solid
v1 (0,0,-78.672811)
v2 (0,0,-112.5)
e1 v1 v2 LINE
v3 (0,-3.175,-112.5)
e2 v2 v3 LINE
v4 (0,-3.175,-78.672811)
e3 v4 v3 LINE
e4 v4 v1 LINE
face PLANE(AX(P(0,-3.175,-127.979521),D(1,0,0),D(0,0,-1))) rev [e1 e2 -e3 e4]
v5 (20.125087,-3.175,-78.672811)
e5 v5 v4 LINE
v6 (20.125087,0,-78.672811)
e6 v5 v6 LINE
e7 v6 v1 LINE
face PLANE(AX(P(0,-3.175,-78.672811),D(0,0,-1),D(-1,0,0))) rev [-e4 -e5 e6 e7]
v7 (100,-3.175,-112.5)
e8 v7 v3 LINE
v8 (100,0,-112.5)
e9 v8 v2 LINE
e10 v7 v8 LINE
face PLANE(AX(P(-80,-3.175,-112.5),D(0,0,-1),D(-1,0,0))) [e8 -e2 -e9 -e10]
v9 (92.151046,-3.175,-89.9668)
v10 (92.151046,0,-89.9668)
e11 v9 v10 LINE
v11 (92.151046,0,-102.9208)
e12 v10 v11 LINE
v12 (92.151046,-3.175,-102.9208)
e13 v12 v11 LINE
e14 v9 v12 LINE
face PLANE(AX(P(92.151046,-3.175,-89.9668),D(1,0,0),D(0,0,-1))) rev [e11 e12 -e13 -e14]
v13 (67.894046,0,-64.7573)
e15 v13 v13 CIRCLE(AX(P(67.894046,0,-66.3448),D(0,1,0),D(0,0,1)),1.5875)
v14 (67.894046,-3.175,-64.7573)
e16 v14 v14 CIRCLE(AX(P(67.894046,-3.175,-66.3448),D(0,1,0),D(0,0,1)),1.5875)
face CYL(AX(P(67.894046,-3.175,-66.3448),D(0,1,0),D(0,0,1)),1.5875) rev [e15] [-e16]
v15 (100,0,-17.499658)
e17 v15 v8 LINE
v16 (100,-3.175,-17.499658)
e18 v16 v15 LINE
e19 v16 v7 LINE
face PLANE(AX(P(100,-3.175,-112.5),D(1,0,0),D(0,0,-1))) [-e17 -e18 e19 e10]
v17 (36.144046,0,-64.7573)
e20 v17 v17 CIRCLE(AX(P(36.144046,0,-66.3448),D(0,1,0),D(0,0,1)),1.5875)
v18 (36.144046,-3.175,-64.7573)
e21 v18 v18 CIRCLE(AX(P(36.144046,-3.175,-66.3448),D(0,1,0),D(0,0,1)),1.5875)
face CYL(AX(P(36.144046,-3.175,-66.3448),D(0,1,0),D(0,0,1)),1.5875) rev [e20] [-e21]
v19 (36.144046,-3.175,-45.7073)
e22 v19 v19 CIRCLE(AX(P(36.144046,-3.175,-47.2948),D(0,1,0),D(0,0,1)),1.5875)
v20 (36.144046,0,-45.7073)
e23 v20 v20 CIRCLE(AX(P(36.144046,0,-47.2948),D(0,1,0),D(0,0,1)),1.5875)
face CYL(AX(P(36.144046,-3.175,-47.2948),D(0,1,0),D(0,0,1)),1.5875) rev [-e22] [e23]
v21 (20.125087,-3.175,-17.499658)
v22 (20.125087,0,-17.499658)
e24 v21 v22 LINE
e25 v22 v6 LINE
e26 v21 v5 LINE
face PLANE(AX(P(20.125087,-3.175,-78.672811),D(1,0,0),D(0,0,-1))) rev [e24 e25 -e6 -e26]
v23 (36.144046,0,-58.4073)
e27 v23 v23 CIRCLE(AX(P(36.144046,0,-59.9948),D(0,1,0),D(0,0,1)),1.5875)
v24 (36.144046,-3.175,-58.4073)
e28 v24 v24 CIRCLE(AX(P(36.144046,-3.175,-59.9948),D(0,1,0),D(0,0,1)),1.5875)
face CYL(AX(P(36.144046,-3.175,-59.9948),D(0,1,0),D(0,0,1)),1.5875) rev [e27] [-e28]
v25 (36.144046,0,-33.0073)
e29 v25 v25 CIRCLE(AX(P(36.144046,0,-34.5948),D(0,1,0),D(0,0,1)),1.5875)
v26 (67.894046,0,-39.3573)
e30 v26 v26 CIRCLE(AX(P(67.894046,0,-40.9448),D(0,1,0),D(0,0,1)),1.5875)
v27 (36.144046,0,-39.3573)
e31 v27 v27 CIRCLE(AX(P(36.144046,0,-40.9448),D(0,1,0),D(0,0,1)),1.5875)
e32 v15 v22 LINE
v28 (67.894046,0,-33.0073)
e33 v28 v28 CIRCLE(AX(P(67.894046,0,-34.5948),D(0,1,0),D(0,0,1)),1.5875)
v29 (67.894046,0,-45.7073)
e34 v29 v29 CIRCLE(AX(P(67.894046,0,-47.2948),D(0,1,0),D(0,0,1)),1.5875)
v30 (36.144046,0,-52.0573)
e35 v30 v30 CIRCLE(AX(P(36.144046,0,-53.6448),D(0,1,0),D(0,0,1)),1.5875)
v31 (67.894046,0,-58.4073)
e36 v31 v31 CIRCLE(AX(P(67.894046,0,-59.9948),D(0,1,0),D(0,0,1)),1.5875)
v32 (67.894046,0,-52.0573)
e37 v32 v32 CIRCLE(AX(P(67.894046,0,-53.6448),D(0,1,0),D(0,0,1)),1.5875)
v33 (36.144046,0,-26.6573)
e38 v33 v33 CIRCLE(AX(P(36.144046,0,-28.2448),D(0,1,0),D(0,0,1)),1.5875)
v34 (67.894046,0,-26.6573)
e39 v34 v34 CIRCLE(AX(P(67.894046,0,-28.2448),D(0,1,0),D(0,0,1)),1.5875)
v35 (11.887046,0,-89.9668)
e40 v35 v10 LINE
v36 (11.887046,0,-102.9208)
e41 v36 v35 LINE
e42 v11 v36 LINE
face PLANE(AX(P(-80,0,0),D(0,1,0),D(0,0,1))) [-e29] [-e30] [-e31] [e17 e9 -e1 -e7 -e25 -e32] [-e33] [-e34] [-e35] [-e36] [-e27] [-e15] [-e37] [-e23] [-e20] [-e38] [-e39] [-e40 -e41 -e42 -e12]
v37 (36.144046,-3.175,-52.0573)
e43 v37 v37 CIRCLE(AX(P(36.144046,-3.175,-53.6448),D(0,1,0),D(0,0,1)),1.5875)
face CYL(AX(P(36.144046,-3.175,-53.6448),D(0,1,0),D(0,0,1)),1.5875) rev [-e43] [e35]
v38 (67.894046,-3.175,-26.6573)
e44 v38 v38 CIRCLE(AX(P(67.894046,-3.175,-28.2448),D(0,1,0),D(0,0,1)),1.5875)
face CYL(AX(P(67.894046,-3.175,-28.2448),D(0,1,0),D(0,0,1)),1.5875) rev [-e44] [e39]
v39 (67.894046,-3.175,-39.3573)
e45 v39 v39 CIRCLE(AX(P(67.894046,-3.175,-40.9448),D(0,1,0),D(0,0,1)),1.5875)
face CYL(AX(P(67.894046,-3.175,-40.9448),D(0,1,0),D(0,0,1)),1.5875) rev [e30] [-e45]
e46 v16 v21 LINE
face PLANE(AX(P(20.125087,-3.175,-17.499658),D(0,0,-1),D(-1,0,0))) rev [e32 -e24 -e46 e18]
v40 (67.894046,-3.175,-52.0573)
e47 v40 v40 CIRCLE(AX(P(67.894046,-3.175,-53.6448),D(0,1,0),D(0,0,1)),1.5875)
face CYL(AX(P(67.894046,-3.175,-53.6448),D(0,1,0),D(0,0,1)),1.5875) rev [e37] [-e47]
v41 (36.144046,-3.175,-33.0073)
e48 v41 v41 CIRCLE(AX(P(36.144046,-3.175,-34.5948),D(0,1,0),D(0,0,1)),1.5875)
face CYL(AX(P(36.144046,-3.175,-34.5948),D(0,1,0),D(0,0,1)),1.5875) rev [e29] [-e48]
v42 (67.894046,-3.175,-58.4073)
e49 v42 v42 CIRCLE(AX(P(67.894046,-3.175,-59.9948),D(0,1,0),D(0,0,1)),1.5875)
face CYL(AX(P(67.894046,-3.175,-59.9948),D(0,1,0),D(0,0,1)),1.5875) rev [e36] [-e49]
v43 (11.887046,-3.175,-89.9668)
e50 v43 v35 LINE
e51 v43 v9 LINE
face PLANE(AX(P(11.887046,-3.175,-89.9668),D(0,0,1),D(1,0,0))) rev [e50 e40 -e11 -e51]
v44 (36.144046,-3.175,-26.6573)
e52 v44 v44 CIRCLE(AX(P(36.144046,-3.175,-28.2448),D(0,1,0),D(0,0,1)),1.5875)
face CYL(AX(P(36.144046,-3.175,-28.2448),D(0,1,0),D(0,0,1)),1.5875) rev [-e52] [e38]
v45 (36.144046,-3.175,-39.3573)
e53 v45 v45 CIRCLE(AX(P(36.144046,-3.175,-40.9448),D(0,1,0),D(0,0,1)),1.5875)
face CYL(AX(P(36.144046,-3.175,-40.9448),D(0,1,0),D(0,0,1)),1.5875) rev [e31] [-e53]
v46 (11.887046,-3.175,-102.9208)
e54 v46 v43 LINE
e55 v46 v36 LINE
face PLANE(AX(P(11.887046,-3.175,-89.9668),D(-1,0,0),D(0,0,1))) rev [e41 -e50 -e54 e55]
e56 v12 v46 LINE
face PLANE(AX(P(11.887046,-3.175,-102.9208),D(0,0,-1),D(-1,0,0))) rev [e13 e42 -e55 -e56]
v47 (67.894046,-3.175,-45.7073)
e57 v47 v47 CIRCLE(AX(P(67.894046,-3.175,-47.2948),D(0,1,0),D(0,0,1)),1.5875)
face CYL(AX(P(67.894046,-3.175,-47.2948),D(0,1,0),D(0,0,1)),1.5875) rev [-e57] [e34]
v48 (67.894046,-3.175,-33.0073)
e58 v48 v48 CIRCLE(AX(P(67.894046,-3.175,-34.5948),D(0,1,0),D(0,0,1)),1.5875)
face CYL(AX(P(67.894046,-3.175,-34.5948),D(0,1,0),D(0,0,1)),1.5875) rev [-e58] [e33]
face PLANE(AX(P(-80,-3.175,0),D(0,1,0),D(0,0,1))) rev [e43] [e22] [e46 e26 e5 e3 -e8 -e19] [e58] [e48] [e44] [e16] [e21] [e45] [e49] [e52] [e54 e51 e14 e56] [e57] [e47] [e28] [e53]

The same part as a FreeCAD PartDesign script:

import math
import FreeCAD as App
import Part
import Sketcher

V = App.Vector
Q = App.Units.Quantity


def add_polygon(sketch, points):
    """Adds a closed chain of lines whose ends are joined by coincident constraints."""
    first, n = sketch.GeometryCount, len(points)
    for a, b in zip(points, points[1:] + points[:1]):
        sketch.addGeometry(Part.LineSegment(App.Vector(*a, 0), App.Vector(*b, 0)), False)
    for i in range(n):
        sketch.addConstraint(Sketcher.Constraint("Coincident", first + i, 2, first + (i + 1) % n, 1))

doc = App.newDocument("Part")
params = doc.addObject("Spreadsheet::Sheet", "Params")
for row, (alias, value) in enumerate([
    ("pad1_length", "0.125 in"),
    ("sketch2_diameter", "0.125 in"),
    ("sketch2_width", "3.16 in"),
    ("sketch2_height", "0.51 in"),
    ("sketch3_diameter", "0.16 in"),
    ("sketch3_diameter2", "0.13 in"),
    ("sketch3_width", "1.86 in"),
    ("sketch3_height", "5.48 in"),
    ("sketch4_radius", "1 in"),
    ("sketch4_diameter", "0.13 in"),
    ("sketch5_diameter", "0.14 in"),
], start=1):
    params.set(f"A{row}", alias)
    params.set(f"B{row}", "=" + value)
    params.setAlias(f"B{row}", alias)

body = doc.addObject("PartDesign::Body", "Body")

sketch1 = body.newObject("Sketcher::SketchObject", "Sketch")
sketch1.AttachmentSupport = (doc.getObject("XZ_Plane"), [""])
sketch1.MapMode = "FlatFace"
sketch1.addGeometry([
    Part.LineSegment(V(100, -112.5, 0), V(-80, -112.5, 0)),
    Part.ArcOfCircle(Part.Circle(V(-80, 0, 0), V(0, 0, 1), 112.5), math.radians(90), math.radians(270)),
    Part.LineSegment(V(-80, 112.5, 0), V(100, 112.5, 0)),
    Part.LineSegment(V(100, 112.5, 0), V(100, -112.5, 0)),
], False)
sketch1.addConstraint([
    Sketcher.Constraint("Tangent", 0, 2, 1, 2),
    Sketcher.Constraint("Tangent", 1, 1, 2, 1),
    Sketcher.Constraint("Coincident", 2, 2, 3, 1),
    Sketcher.Constraint("Coincident", 3, 2, 0, 1),
    Sketcher.Constraint("Horizontal", 0),
    Sketcher.Constraint("Horizontal", 2),
    Sketcher.Constraint("Vertical", 3),
    Sketcher.Constraint("PointOnObject", 1, 3, -1),
    Sketcher.Constraint("Radius", 1, 112.5),
    Sketcher.Constraint("DistanceX", 0, 2, 0, 1, 180.0),
    Sketcher.Constraint("DistanceX", 1, 3, -1, 1, 80.0),
])
pad1 = body.newObject("PartDesign::Pad", "Pad")
pad1.Profile = sketch1
pad1.setExpression("Length", "Params.pad1_length")

sketch2 = body.newObject("Sketcher::SketchObject", "Sketch001")
sketch2.AttachmentSupport = (doc.getObject("XZ_Plane"), [""])
sketch2.MapMode = "FlatFace"
sketch2.addGeometry(Part.Circle(V(36.144046, 66.3448, 0), V(0, 0, 1), 1.5875), False)
sketch2.addGeometry(Part.Circle(V(36.144046, 59.9948, 0), V(0, 0, 1), 1.5875), False)
sketch2.addGeometry(Part.Circle(V(36.144046, 53.6448, 0), V(0, 0, 1), 1.5875), False)
sketch2.addGeometry(Part.Circle(V(36.144046, 47.2948, 0), V(0, 0, 1), 1.5875), False)
sketch2.addGeometry(Part.Circle(V(36.144046, 40.9448, 0), V(0, 0, 1), 1.5875), False)
sketch2.addGeometry(Part.Circle(V(36.144046, 34.5948, 0), V(0, 0, 1), 1.5875), False)
sketch2.addGeometry(Part.Circle(V(36.144046, 28.2448, 0), V(0, 0, 1), 1.5875), False)
sketch2.addGeometry(Part.Circle(V(67.894046, 66.3448, 0), V(0, 0, 1), 1.5875), False)
sketch2.addGeometry(Part.Circle(V(67.894046, 59.9948, 0), V(0, 0, 1), 1.5875), False)
sketch2.addGeometry(Part.Circle(V(67.894046, 53.6448, 0), V(0, 0, 1), 1.5875), False)
sketch2.addGeometry(Part.Circle(V(67.894046, 47.2948, 0), V(0, 0, 1), 1.5875), False)
sketch2.addGeometry(Part.Circle(V(67.894046, 40.9448, 0), V(0, 0, 1), 1.5875), False)
sketch2.addGeometry(Part.Circle(V(67.894046, 34.5948, 0), V(0, 0, 1), 1.5875), False)
sketch2.addGeometry(Part.Circle(V(67.894046, 28.2448, 0), V(0, 0, 1), 1.5875), False)
sketch2.addGeometry(Part.Circle(V(36.144046, -66.3448, 0), V(0, 0, 1), 1.5875), False)
sketch2.addGeometry(Part.Circle(V(36.144046, -59.9948, 0), V(0, 0, 1), 1.5875), False)
sketch2.addGeometry(Part.Circle(V(36.144046, -53.6448, 0), V(0, 0, 1), 1.5875), False)
sketch2.addGeometry(Part.Circle(V(36.144046, -47.2948, 0), V(0, 0, 1), 1.5875), False)
sketch2.addGeometry(Part.Circle(V(36.144046, -40.9448, 0), V(0, 0, 1), 1.5875), False)
sketch2.addGeometry(Part.Circle(V(36.144046, -34.5948, 0), V(0, 0, 1), 1.5875), False)
sketch2.addGeometry(Part.Circle(V(36.144046, -28.2448, 0), V(0, 0, 1), 1.5875), False)
sketch2.addGeometry(Part.Circle(V(67.894046, -66.3448, 0), V(0, 0, 1), 1.5875), False)
sketch2.addGeometry(Part.Circle(V(67.894046, -59.9948, 0), V(0, 0, 1), 1.5875), False)
sketch2.addGeometry(Part.Circle(V(67.894046, -53.6448, 0), V(0, 0, 1), 1.5875), False)
sketch2.addGeometry(Part.Circle(V(67.894046, -47.2948, 0), V(0, 0, 1), 1.5875), False)
sketch2.addGeometry(Part.Circle(V(67.894046, -40.9448, 0), V(0, 0, 1), 1.5875), False)
sketch2.addGeometry(Part.Circle(V(67.894046, -34.5948, 0), V(0, 0, 1), 1.5875), False)
sketch2.addGeometry(Part.Circle(V(67.894046, -28.2448, 0), V(0, 0, 1), 1.5875), False)
add_polygon(sketch2, [(11.887046, 89.9668), (11.887046, 102.9208), (92.151046, 102.9208), (92.151046, 89.9668)])
add_polygon(sketch2, [(11.887046, -102.9208), (11.887046, -89.9668), (92.151046, -89.9668), (92.151046, -102.9208)])
sketch2.addConstraint([
    Sketcher.Constraint("Vertical", 28),
    Sketcher.Constraint("Horizontal", 29),
    Sketcher.Constraint("Vertical", 30),
    Sketcher.Constraint("Horizontal", 31),
    Sketcher.Constraint("Vertical", 32),
    Sketcher.Constraint("Horizontal", 33),
    Sketcher.Constraint("Vertical", 34),
    Sketcher.Constraint("Horizontal", 35),
    Sketcher.Constraint("Equal", 0, 1),
    Sketcher.Constraint("Equal", 1, 2),
    Sketcher.Constraint("Equal", 2, 3),
    Sketcher.Constraint("Equal", 3, 4),
    Sketcher.Constraint("Equal", 4, 5),
    Sketcher.Constraint("Equal", 5, 6),
    Sketcher.Constraint("Equal", 6, 7),
    Sketcher.Constraint("Equal", 7, 8),
    Sketcher.Constraint("Equal", 8, 9),
    Sketcher.Constraint("Equal", 9, 10),
    Sketcher.Constraint("Equal", 10, 11),
    Sketcher.Constraint("Equal", 11, 12),
    Sketcher.Constraint("Equal", 12, 13),
    Sketcher.Constraint("Equal", 13, 14),
    Sketcher.Constraint("Equal", 14, 15),
    Sketcher.Constraint("Equal", 15, 16),
    Sketcher.Constraint("Equal", 16, 17),
    Sketcher.Constraint("Equal", 17, 18),
    Sketcher.Constraint("Equal", 18, 19),
    Sketcher.Constraint("Equal", 19, 20),
    Sketcher.Constraint("Equal", 20, 21),
    Sketcher.Constraint("Equal", 21, 22),
    Sketcher.Constraint("Equal", 22, 23),
    Sketcher.Constraint("Equal", 23, 24),
    Sketcher.Constraint("Equal", 24, 25),
    Sketcher.Constraint("Equal", 25, 26),
    Sketcher.Constraint("Equal", 26, 27),
    Sketcher.Constraint("Symmetric", 0, 3, 14, 3, -1),
    Sketcher.Constraint("Symmetric", 1, 3, 15, 3, -1),
    Sketcher.Constraint("Symmetric", 2, 3, 16, 3, -1),
    Sketcher.Constraint("Symmetric", 3, 3, 17, 3, -1),
    Sketcher.Constraint("Symmetric", 4, 3, 18, 3, -1),
    Sketcher.Constraint("Symmetric", 5, 3, 19, 3, -1),
    Sketcher.Constraint("Symmetric", 6, 3, 20, 3, -1),
    Sketcher.Constraint("Symmetric", 7, 3, 21, 3, -1),
    Sketcher.Constraint("Symmetric", 8, 3, 22, 3, -1),
    Sketcher.Constraint("Symmetric", 9, 3, 23, 3, -1),
    Sketcher.Constraint("Symmetric", 10, 3, 24, 3, -1),
    Sketcher.Constraint("Symmetric", 11, 3, 25, 3, -1),
    Sketcher.Constraint("Symmetric", 12, 3, 26, 3, -1),
    Sketcher.Constraint("Symmetric", 13, 3, 27, 3, -1),
    Sketcher.Constraint("Symmetric", 31, 2, 32, 2, -1),
    Sketcher.Constraint("Symmetric", 29, 2, 34, 2, -1),
    Sketcher.Constraint("Horizontal", 0, 3, 7, 3),
    Sketcher.Constraint("Horizontal", 1, 3, 8, 3),
    Sketcher.Constraint("Horizontal", 2, 3, 9, 3),
    Sketcher.Constraint("Horizontal", 3, 3, 10, 3),
    Sketcher.Constraint("Horizontal", 4, 3, 11, 3),
    Sketcher.Constraint("Horizontal", 5, 3, 12, 3),
    Sketcher.Constraint("Horizontal", 6, 3, 13, 3),
    Sketcher.Constraint("Vertical", 0, 3, 1, 3),
    Sketcher.Constraint("Vertical", 1, 3, 2, 3),
    Sketcher.Constraint("Vertical", 2, 3, 3, 3),
    Sketcher.Constraint("Vertical", 3, 3, 4, 3),
    Sketcher.Constraint("Vertical", 4, 3, 5, 3),
    Sketcher.Constraint("Vertical", 5, 3, 6, 3),
    Sketcher.Constraint("Vertical", 7, 3, 8, 3),
    Sketcher.Constraint("Vertical", 8, 3, 9, 3),
    Sketcher.Constraint("Vertical", 9, 3, 10, 3),
    Sketcher.Constraint("Vertical", 10, 3, 11, 3),
    Sketcher.Constraint("Vertical", 11, 3, 12, 3),
    Sketcher.Constraint("Vertical", 12, 3, 13, 3),
    Sketcher.Constraint("Diameter", 0, Q("0.125 in")),
    Sketcher.Constraint("DistanceY", 4, 3, 0, 3, Q("1 in")),
    Sketcher.Constraint("DistanceY", 5, 3, 1, 3, Q("1 in")),
    Sketcher.Constraint("DistanceY", 6, 3, 2, 3, Q("1 in")),
    Sketcher.Constraint("DistanceX", 29, 1, 29, 2, Q("3.16 in")),
    Sketcher.Constraint("DistanceY", 28, 1, 28, 2, Q("0.51 in")),
    Sketcher.Constraint("DistanceY", 2, 3, 0, 3, Q("0.5 in")),
    Sketcher.Constraint("DistanceY", 3, 3, 1, 3, Q("0.5 in")),
    Sketcher.Constraint("DistanceY", 1, 3, 0, 3, Q("0.25 in")),
    Sketcher.Constraint("DistanceX", 0, 3, 7, 3, Q("1.25 in")),
    Sketcher.Constraint("DistanceY", 0, 3, 28, 2, Q("1.44 in")),
    Sketcher.Constraint("DistanceY", -1, 1, 0, 3, Q("2.612 in")),
    Sketcher.Constraint("DistanceX", 28, 2, 0, 3, Q("0.955 in")),
    Sketcher.Constraint("DistanceX", -1, 1, 0, 3, 36.144046),
])
sketch2.setExpression("Constraints[78]", "Params.sketch2_diameter")
sketch2.setExpression("Constraints[82]", "Params.sketch2_width")
sketch2.setExpression("Constraints[83]", "Params.sketch2_height")
pocket1 = body.newObject("PartDesign::Pocket", "Pocket")
pocket1.Profile = sketch2
pocket1.Type = "ThroughAll"
pocket1.Reversed = True

sketch3 = body.newObject("Sketcher::SketchObject", "Sketch002")
sketch3.AttachmentSupport = (doc.getObject("XZ_Plane"), [""])
sketch3.MapMode = "FlatFace"
sketch3.addGeometry(Part.Circle(V(-50.42154, 0, 0), V(0, 0, 1), 2.032), False)
sketch3.addGeometry(Part.Circle(V(25.77846, 0, 0), V(0, 0, 1), 1.651), False)
sketch3.addGeometry(Part.Circle(V(86.73846, 0, 0), V(0, 0, 1), 1.651), False)
sketch3.addGeometry(Part.Circle(V(-50.42154, -40.64, 0), V(0, 0, 1), 1.651), False)
sketch3.addGeometry(Part.Circle(V(-50.42154, 40.64, 0), V(0, 0, 1), 1.651), False)
sketch3.addGeometry(Part.Circle(V(15.87246, 40.64, 0), V(0, 0, 1), 2.032), False)
sketch3.addGeometry(Part.Circle(V(15.87246, -40.64, 0), V(0, 0, 1), 2.032), False)
add_polygon(sketch3, [(-37.72154, -69.596), (-37.72154, 69.596), (9.52246, 69.596), (9.52246, -69.596)])
sketch3.addConstraint([
    Sketcher.Constraint("Vertical", 7),
    Sketcher.Constraint("Horizontal", 8),
    Sketcher.Constraint("Vertical", 9),
    Sketcher.Constraint("Horizontal", 10),
    Sketcher.Constraint("Equal", 1, 2),
    Sketcher.Constraint("Equal", 2, 3),
    Sketcher.Constraint("Equal", 3, 4),
    Sketcher.Constraint("Equal", 0, 5),
    Sketcher.Constraint("Equal", 5, 6),
    Sketcher.Constraint("Symmetric", 3, 3, 4, 3, -1),
    Sketcher.Constraint("Symmetric", 5, 3, 6, 3, -1),
    Sketcher.Constraint("PointOnObject", 0, 3, -1),
    Sketcher.Constraint("PointOnObject", 1, 3, -1),
    Sketcher.Constraint("PointOnObject", 2, 3, -1),
    Sketcher.Constraint("Horizontal", 4, 3, 5, 3),
    Sketcher.Constraint("Vertical", 0, 3, 3, 3),
    Sketcher.Constraint("Diameter", 0, Q("0.16 in")),
    Sketcher.Constraint("Diameter", 1, Q("0.13 in")),
    Sketcher.Constraint("DistanceX", 0, 3, 1, 3, Q("3 in")),
    Sketcher.Constraint("DistanceX", 8, 1, 8, 2, Q("1.86 in")),
    Sketcher.Constraint("DistanceY", 7, 1, 7, 2, Q("5.48 in")),
    Sketcher.Constraint("DistanceY", 3, 3, -1, 1, Q("1.6 in")),
    Sketcher.Constraint("DistanceX", 1, 3, 2, 3, Q("2.4 in")),
    Sketcher.Constraint("DistanceX", 4, 3, 7, 2, Q("0.5 in")),
    Sketcher.Constraint("DistanceY", -1, 1, 7, 2, Q("2.74 in")),
    Sketcher.Constraint("DistanceX", 5, 3, 1, 3, Q("0.39 in")),
    Sketcher.Constraint("DistanceX", 0, 3, -1, 1, Q("1.9851 in")),
])
sketch3.setExpression("Constraints[20]", "Params.sketch3_diameter")
sketch3.setExpression("Constraints[21]", "Params.sketch3_diameter2")
sketch3.setExpression("Constraints[23]", "Params.sketch3_width")
sketch3.setExpression("Constraints[24]", "Params.sketch3_height")
pocket2 = body.newObject("PartDesign::Pocket", "Pocket001")
pocket2.Profile = sketch3
pocket2.Type = "ThroughAll"
pocket2.Reversed = True

sketch4 = body.newObject("Sketcher::SketchObject", "Sketch003")
sketch4.AttachmentSupport = (doc.getObject("XZ_Plane"), [""])
sketch4.MapMode = "FlatFace"
sketch4.addGeometry([
    Part.Circle(V(-177.3836, -33.02, 0), V(0, 0, 1), 1.651),
    Part.Circle(V(-177.3836, 33.02, 0), V(0, 0, 1), 1.651),
    Part.Circle(V(-151.9836, -33.02, 0), V(0, 0, 1), 1.651),
    Part.Circle(V(-151.9836, 33.02, 0), V(0, 0, 1), 1.651),
    Part.LineSegment(V(-167.0966, -25.4, 0), V(-229.776687, -25.4, 0)),
    Part.LineSegment(V(-229.776687, -25.4, 0), V(-229.776687, 25.4, 0)),
    Part.LineSegment(V(-229.776687, 25.4, 0), V(-167.0966, 25.4, 0)),
    Part.ArcOfCircle(Part.Circle(V(-167.0966, 0, 0), V(0, 0, 1), 25.4), math.radians(-90), math.radians(90)),
], False)
sketch4.addConstraint([
    Sketcher.Constraint("Coincident", 4, 2, 5, 1),
    Sketcher.Constraint("Coincident", 5, 2, 6, 1),
    Sketcher.Constraint("Tangent", 6, 2, 7, 2),
    Sketcher.Constraint("Tangent", 7, 1, 4, 1),
    Sketcher.Constraint("Horizontal", 4),
    Sketcher.Constraint("Vertical", 5),
    Sketcher.Constraint("Horizontal", 6),
    Sketcher.Constraint("Equal", 0, 1),
    Sketcher.Constraint("Equal", 1, 2),
    Sketcher.Constraint("Equal", 2, 3),
    Sketcher.Constraint("Symmetric", 0, 3, 1, 3, -1),
    Sketcher.Constraint("Symmetric", 2, 3, 3, 3, -1),
    Sketcher.Constraint("PointOnObject", 7, 3, -1),
    Sketcher.Constraint("Horizontal", 0, 3, 2, 3),
    Sketcher.Constraint("Radius", 7, Q("1 in")),
    Sketcher.Constraint("Diameter", 0, Q("0.13 in")),
    Sketcher.Constraint("DistanceX", 0, 3, 2, 3, Q("1 in")),
    Sketcher.Constraint("DistanceY", 0, 3, -1, 1, Q("1.3 in")),
    Sketcher.Constraint("DistanceX", 0, 3, 7, 3, Q("0.405 in")),
    Sketcher.Constraint("DistanceX", 0, 3, -1, 1, 177.3836),
    Sketcher.Constraint("DistanceX", 4, 2, 4, 1, 62.680087),
])
sketch4.setExpression("Constraints[14]", "Params.sketch4_radius")
sketch4.setExpression("Constraints[15]", "Params.sketch4_diameter")
pocket3 = body.newObject("PartDesign::Pocket", "Pocket002")
pocket3.Profile = sketch4
pocket3.Type = "ThroughAll"
pocket3.Reversed = True

sketch5 = body.newObject("Sketcher::SketchObject", "Sketch004")
sketch5.AttachmentSupport = (doc.getObject("XZ_Plane"), [""])
sketch5.MapMode = "FlatFace"
sketch5.addGeometry([
    Part.Circle(V(-161.79532, 55.88, 0), V(0, 0, 1), 1.778),
    Part.Circle(V(-124.96462, 86.784627, 0), V(0, 0, 1), 1.778),
    Part.Circle(V(-161.79532, -55.88, 0), V(0, 0, 1), 1.778),
    Part.Circle(V(-124.96462, -86.784627, 0), V(0, 0, 1), 1.778),
], False)
sketch5.addConstraint([
    Sketcher.Constraint("Equal", 0, 1),
    Sketcher.Constraint("Equal", 1, 2),
    Sketcher.Constraint("Equal", 2, 3),
    Sketcher.Constraint("Symmetric", 0, 3, 2, 3, -1),
    Sketcher.Constraint("Symmetric", 1, 3, 3, 3, -1),
    Sketcher.Constraint("Diameter", 0, Q("0.14 in")),
    Sketcher.Constraint("DistanceY", -1, 1, 0, 3, Q("2.2 in")),
    Sketcher.Constraint("DistanceX", 0, 3, 1, 3, 36.8307),
    Sketcher.Constraint("DistanceX", 0, 3, -1, 1, 161.79532),
    Sketcher.Constraint("DistanceY", -1, 1, 1, 3, 86.784627),
])
sketch5.setExpression("Constraints[5]", "Params.sketch5_diameter")
pocket4 = body.newObject("PartDesign::Pocket", "Pocket003")
pocket4.Profile = sketch5
pocket4.Type = "ThroughAll"
pocket4.Reversed = True

sketch6 = body.newObject("Sketcher::SketchObject", "Sketch005")
sketch6.AttachmentSupport = (doc.getObject("XZ_Plane"), [""])
sketch6.MapMode = "FlatFace"
add_polygon(sketch6, [(0, -78.672811), (0, -127.979521), (-214.259658, -127.979521), (-214.259658, 151.143861), (114.992353, 151.143861), (114.992353, -17.499658), (20.125087, -17.499658), (20.125087, -78.672811)])
sketch6.addConstraint([
    Sketcher.Constraint("Vertical", 0),
    Sketcher.Constraint("Horizontal", 1),
    Sketcher.Constraint("Vertical", 2),
    Sketcher.Constraint("Horizontal", 3),
    Sketcher.Constraint("Vertical", 4),
    Sketcher.Constraint("Horizontal", 5),
    Sketcher.Constraint("Vertical", 6),
    Sketcher.Constraint("Horizontal", 7),
    Sketcher.Constraint("PointOnObject", 0, 2, -2),
    Sketcher.Constraint("DistanceX", 1, 2, 1, 1, 214.259658),
    Sketcher.Constraint("DistanceX", 3, 1, 3, 2, 329.252011),
    Sketcher.Constraint("DistanceY", 0, 2, 0, 1, 49.30671),
    Sketcher.Constraint("DistanceY", 2, 1, 2, 2, 279.123381),
    Sketcher.Constraint("DistanceY", 4, 2, 4, 1, 168.643519),
    Sketcher.Constraint("DistanceX", 5, 2, 5, 1, 94.867266),
    Sketcher.Constraint("DistanceY", 0, 2, -1, 1, 127.979521),
])
pocket5 = body.newObject("PartDesign::Pocket", "Pocket004")
pocket5.Profile = sketch6
pocket5.Type = "ThroughAll"
pocket5.Reversed = True

doc.recompute()
